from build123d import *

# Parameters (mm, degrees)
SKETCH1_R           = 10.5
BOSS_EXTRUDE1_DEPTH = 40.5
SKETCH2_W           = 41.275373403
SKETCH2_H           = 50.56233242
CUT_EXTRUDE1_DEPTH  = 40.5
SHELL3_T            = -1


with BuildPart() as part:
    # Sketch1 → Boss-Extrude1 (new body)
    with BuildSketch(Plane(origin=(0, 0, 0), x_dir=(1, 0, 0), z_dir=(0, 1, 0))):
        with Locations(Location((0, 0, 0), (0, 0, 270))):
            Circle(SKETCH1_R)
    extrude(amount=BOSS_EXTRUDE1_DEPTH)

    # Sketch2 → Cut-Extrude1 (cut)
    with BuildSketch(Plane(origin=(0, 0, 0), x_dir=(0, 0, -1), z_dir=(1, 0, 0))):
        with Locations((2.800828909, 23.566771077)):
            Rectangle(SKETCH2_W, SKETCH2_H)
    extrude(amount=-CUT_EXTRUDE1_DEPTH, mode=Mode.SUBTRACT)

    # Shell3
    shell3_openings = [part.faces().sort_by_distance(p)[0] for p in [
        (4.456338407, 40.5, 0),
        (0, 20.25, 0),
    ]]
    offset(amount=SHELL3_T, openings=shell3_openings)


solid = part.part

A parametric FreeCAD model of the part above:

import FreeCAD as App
import Part
import Sketcher
from FreeCAD import Vector


def faces_at(feature, points):
    """Names of the faces that lie closest to the given points."""
    faces = feature.Shape.Faces
    near = lambda p: min(range(len(faces)), key=lambda i: faces[i].distToShape(Part.Vertex(*p))[0])
    return sorted({f"Face{near(p) + 1}" for p in points})


def add_polygon(sketch, points):
    """Adds a closed chain of lines whose ends are joined by coincident constraints."""
    first, n = sketch.GeometryCount, len(points)
    for a, b in zip(points, points[1:] + points[:1]):
        sketch.addGeometry(Part.LineSegment(App.Vector(*a, 0), App.Vector(*b, 0)), False)
    for i in range(n):
        sketch.addConstraint(Sketcher.Constraint("Coincident", first + i, 2, first + (i + 1) % n, 1))

doc = App.newDocument("Part")
body = doc.addObject("PartDesign::Body", "Body")

# Sketch on XZ plane
sketch1 = body.newObject("Sketcher::SketchObject", "Sketch")
sketch1.AttachmentSupport = (doc.getObject("XZ_Plane"), [""])
sketch1.MapMode = "FlatFace"
sketch1.addGeometry(Part.Circle(Vector(0, 0, 0), Vector(0, 0, 1), 10), False)
sketch1.addConstraint([
    Sketcher.Constraint("Coincident", 0, 3, -1, 1),
    Sketcher.Constraint("Diameter", 0, 21.0),
])
pad1 = body.newObject("PartDesign::Pad", "Pad")
pad1.Profile = sketch1
pad1.Length = 40.5
pad1.Reversed = True

# Sketch on YZ plane
sketch2 = body.newObject("Sketcher::SketchObject", "Sketch001")
sketch2.AttachmentSupport = (doc.getObject("YZ_Plane"), [""])
sketch2.MapMode = "FlatFace"
add_polygon(sketch2, [(49, 18), (-2, 18), (-2, -23), (49, -23)])  # lines 0-3
sketch2.addConstraint([
    Sketcher.Constraint("Horizontal", 0),
    Sketcher.Constraint("Vertical", 1),
    Sketcher.Constraint("Horizontal", 2),
    Sketcher.Constraint("Vertical", 3),
    Sketcher.Constraint("DistanceX", 0, 2, 0, 1, 50.562332),
    Sketcher.Constraint("DistanceY", 1, 2, 1, 1, 41.275373),
    Sketcher.Constraint("DistanceX", 0, 2, -1, 1, 1.714395),
    Sketcher.Constraint("DistanceY", -1, 1, 0, 2, 17.836858),
])
pocket1 = body.newObject("PartDesign::Pocket", "Pocket")
pocket1.Profile = sketch2
pocket1.Length = 40.5
doc.recompute()

thickness = body.newObject("PartDesign::Thickness", "Thickness")
thickness.Base = (pocket1, faces_at(pocket1, [(5.25, 40.5, 0), (0, 20.25, 0)]))
thickness.Value = 1
thickness.Reversed = True
thickness.Join = "Arc"

doc.recompute()
